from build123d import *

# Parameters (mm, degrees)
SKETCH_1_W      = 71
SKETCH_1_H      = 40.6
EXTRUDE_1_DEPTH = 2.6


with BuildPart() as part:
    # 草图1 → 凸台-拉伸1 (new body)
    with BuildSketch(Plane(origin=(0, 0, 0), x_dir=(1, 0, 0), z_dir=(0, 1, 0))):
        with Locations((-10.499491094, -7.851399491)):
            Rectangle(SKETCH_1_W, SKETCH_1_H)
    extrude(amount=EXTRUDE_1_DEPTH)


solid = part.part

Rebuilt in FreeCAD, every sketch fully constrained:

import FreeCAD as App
import Part
import Sketcher
from FreeCAD import Vector

doc = App.newDocument("Part")
body = doc.addObject("PartDesign::Body", "Body")

# Sketch on XZ plane
sketch1 = body.newObject("Sketcher::SketchObject", "Sketch")
sketch1.AttachmentSupport = (doc.getObject("XZ_Plane"), [""])
sketch1.MapMode = "FlatFace"
sketch1.addGeometry([
    Part.LineSegment(Vector(-46, -12, 0), Vector(-46, 28, 0)),
    Part.LineSegment(Vector(-46, 28, 0), Vector(25, 28, 0)),
    Part.LineSegment(Vector(25, 28, 0), Vector(25, -12, 0)),
    Part.LineSegment(Vector(25, -12, 0), Vector(-46, -12, 0)),
], False)
sketch1.addConstraint([
    Sketcher.Constraint("Coincident", 0, 2, 1, 1),
    Sketcher.Constraint("Coincident", 1, 2, 2, 1),
    Sketcher.Constraint("Coincident", 2, 2, 3, 1),
    Sketcher.Constraint("Coincident", 3, 2, 0, 1),
    Sketcher.Constraint("Vertical", 0),
    Sketcher.Constraint("Horizontal", 1),
    Sketcher.Constraint("Vertical", 2),
    Sketcher.Constraint("Horizontal", 3),
    Sketcher.Constraint("DistanceX", 1, 1, 1, 2, 71.0),
    Sketcher.Constraint("DistanceY", 0, 1, 0, 2, 40.6),
    Sketcher.Constraint("DistanceY", -1, 1, 0, 2, 28.151399),
    Sketcher.Constraint("DistanceX", 0, 2, -1, 1, 45.999491),
])
pad1 = body.newObject("PartDesign::Pad", "Pad")
pad1.Profile = sketch1
pad1.Length = 2.6
pad1.Reversed = True

doc.recompute()
